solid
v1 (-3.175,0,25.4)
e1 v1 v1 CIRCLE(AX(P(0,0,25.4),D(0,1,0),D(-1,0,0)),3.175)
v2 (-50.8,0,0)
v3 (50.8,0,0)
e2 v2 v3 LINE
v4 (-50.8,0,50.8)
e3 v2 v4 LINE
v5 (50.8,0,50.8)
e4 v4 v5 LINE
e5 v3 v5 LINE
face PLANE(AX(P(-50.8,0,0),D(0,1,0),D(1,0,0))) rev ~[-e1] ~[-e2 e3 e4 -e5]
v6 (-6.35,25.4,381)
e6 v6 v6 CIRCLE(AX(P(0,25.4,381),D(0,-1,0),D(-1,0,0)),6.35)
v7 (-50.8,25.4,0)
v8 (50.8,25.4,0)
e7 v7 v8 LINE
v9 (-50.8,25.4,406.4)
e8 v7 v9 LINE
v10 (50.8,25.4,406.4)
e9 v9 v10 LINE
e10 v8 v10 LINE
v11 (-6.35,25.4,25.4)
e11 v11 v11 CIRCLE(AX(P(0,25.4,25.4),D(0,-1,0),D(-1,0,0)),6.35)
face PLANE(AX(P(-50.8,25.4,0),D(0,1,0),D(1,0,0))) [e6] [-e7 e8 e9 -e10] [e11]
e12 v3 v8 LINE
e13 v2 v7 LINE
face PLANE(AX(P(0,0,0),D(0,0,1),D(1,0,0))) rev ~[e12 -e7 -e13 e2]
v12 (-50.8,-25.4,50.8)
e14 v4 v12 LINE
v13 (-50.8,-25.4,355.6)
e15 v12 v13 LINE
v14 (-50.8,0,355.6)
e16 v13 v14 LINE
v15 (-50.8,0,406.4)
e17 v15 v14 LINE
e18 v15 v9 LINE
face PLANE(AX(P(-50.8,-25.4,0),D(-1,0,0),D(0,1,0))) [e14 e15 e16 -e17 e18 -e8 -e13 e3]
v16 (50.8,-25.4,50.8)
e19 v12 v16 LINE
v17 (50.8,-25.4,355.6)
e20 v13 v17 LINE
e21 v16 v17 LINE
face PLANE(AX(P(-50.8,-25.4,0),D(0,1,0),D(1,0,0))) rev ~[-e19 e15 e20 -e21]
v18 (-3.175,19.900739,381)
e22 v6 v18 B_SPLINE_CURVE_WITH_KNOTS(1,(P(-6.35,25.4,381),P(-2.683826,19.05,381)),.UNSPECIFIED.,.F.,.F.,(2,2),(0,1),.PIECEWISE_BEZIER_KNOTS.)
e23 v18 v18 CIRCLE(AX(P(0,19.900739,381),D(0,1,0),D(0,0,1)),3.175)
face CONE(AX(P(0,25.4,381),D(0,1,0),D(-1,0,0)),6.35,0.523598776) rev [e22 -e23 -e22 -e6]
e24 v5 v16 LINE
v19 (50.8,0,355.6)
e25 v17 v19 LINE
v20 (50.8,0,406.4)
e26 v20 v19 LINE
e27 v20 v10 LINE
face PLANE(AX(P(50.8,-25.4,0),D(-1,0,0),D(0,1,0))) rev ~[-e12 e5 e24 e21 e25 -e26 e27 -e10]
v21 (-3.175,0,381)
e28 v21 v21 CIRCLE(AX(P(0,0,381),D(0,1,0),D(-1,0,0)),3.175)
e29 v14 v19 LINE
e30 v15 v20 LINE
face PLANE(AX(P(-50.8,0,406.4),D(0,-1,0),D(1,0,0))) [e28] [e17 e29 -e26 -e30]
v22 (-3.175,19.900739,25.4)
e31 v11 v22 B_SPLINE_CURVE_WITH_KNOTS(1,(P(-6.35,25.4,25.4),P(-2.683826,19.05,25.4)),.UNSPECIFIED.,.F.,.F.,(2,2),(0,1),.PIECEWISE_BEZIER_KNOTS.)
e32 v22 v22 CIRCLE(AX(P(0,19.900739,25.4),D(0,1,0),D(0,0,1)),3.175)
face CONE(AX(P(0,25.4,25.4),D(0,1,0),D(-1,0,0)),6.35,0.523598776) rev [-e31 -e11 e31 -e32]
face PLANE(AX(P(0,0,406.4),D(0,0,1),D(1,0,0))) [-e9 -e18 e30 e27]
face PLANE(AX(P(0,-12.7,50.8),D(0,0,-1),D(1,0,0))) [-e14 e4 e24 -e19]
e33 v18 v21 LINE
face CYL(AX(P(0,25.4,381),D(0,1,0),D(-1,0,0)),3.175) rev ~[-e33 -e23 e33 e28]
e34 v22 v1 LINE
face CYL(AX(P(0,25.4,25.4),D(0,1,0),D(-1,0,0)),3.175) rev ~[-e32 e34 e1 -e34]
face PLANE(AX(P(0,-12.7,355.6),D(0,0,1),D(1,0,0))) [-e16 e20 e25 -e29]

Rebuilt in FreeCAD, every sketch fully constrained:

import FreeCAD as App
import Part
import Sketcher

V = App.Vector
Q = App.Units.Quantity

doc = App.newDocument("Part")
body = doc.addObject("PartDesign::Body", "Body")

# Sketch on XY plane
sketch1 = body.newObject("Sketcher::SketchObject", "Sketch")
sketch1.AttachmentSupport = (doc.getObject("XY_Plane"), [""])
sketch1.MapMode = "FlatFace"
sketch1.addGeometry([
    Part.LineSegment(V(-50.8, 25.4, 0), V(-50.8, -25.4, 0)),
    Part.LineSegment(V(-50.8, -25.4, 0), V(50.8, -25.4, 0)),
    Part.LineSegment(V(50.8, -25.4, 0), V(50.8, 25.4, 0)),
    Part.LineSegment(V(50.8, 25.4, 0), V(-50.8, 25.4, 0)),
], False)
sketch1.addConstraint([
    Sketcher.Constraint("Coincident", 0, 2, 1, 1),
    Sketcher.Constraint("Coincident", 1, 2, 2, 1),
    Sketcher.Constraint("Coincident", 2, 2, 3, 1),
    Sketcher.Constraint("Coincident", 3, 2, 0, 1),
    Sketcher.Constraint("Vertical", 0),
    Sketcher.Constraint("Horizontal", 1),
    Sketcher.Constraint("Vertical", 2),
    Sketcher.Constraint("Horizontal", 3),
    Sketcher.Constraint("Symmetric", 0, 2, 2, 2, -1, 1),
    Sketcher.Constraint("DistanceX", 1, 1, 1, 2, Q("4 in")),
    Sketcher.Constraint("DistanceY", 0, 2, 0, 1, Q("2 in")),
])
pad1 = body.newObject("PartDesign::Pad", "Pad")
pad1.Profile = sketch1
pad1.Length = Q("16 in")

# Sketch on XY plane
sketch2 = body.newObject("Sketcher::SketchObject", "Sketch001")
sketch2.AttachmentSupport = (doc.getObject("XY_Plane"), [""])
sketch2.MapMode = "FlatFace"
sketch2.AttachmentOffset = App.Placement(V(0, 0, 16 * 25.4), App.Rotation())
sketch2.addGeometry([
    Part.LineSegment(V(-50.8, 0, 0), V(-50.8, -25.4, 0)),
    Part.LineSegment(V(-50.8, -25.4, 0), V(50.8, -25.4, 0)),
    Part.LineSegment(V(50.8, -25.4, 0), V(50.8, 0, 0)),
    Part.LineSegment(V(50.8, 0, 0), V(-50.8, 0, 0)),
], False)
sketch2.addConstraint([
    Sketcher.Constraint("Coincident", 0, 2, 1, 1),
    Sketcher.Constraint("Coincident", 1, 2, 2, 1),
    Sketcher.Constraint("Coincident", 2, 2, 3, 1),
    Sketcher.Constraint("Coincident", 3, 2, 0, 1),
    Sketcher.Constraint("Vertical", 0),
    Sketcher.Constraint("Horizontal", 1),
    Sketcher.Constraint("Vertical", 2),
    Sketcher.Constraint("Horizontal", 3),
    Sketcher.Constraint("Symmetric", 2, 2, 3, 2, -1, 1),
    Sketcher.Constraint("DistanceX", 1, 1, 1, 2, Q("4 in")),
    Sketcher.Constraint("DistanceY", 0, 2, 0, 1, Q("1 in")),
])
pocket1 = body.newObject("PartDesign::Pocket", "Pocket")
pocket1.Profile = sketch2
pocket1.Length = Q("2 in")

# Sketch on XY plane
sketch3 = body.newObject("Sketcher::SketchObject", "Sketch002")
sketch3.AttachmentSupport = (doc.getObject("XY_Plane"), [""])
sketch3.MapMode = "FlatFace"
sketch3.addGeometry([
    Part.LineSegment(V(-50.8, -25.4, 0), V(-50.8, 0, 0)),
    Part.LineSegment(V(-50.8, 0, 0), V(50.8, 0, 0)),
    Part.LineSegment(V(50.8, 0, 0), V(50.8, -25.4, 0)),
    Part.LineSegment(V(50.8, -25.4, 0), V(-50.8, -25.4, 0)),
], False)
sketch3.addConstraint([
    Sketcher.Constraint("Coincident", 0, 2, 1, 1),
    Sketcher.Constraint("Coincident", 1, 2, 2, 1),
    Sketcher.Constraint("Coincident", 2, 2, 3, 1),
    Sketcher.Constraint("Coincident", 3, 2, 0, 1),
    Sketcher.Constraint("Vertical", 0),
    Sketcher.Constraint("Horizontal", 1),
    Sketcher.Constraint("Vertical", 2),
    Sketcher.Constraint("Horizontal", 3),
    Sketcher.Constraint("Symmetric", 0, 2, 1, 2, -1, 1),
    Sketcher.Constraint("DistanceX", 1, 1, 1, 2, Q("4 in")),
    Sketcher.Constraint("DistanceY", 0, 1, 0, 2, Q("1 in")),
])
pocket2 = body.newObject("PartDesign::Pocket", "Pocket001")
pocket2.Profile = sketch3
pocket2.Length = Q("2 in")
pocket2.Reversed = True

# Sketch on XZ plane
sketch4 = body.newObject("Sketcher::SketchObject", "Sketch003")
sketch4.AttachmentSupport = (doc.getObject("XZ_Plane"), [""])
sketch4.MapMode = "FlatFace"
sketch4.AttachmentOffset = App.Placement(V(0, 0, -1 * 25.4), App.Rotation())
sketch4.addGeometry([
    Part.Circle(V(0, 381, 0), V(0, 0, 1), 3.175),
    Part.Circle(V(0, 25.4, 0), V(0, 0, 1), 3.175),
], False)
sketch4.addConstraint([
    Sketcher.Constraint("Equal", 0, 1),
    Sketcher.Constraint("PointOnObject", 0, 3, -2),
    Sketcher.Constraint("PointOnObject", 1, 3, -2),
    Sketcher.Constraint("Diameter", 0, Q("0.25 in")),
    Sketcher.Constraint("DistanceY", -1, 1, 0, 3, Q("15 in")),
    Sketcher.Constraint("DistanceY", -1, 1, 1, 3, Q("1 in")),
])
pocket3 = body.newObject("PartDesign::Pocket", "Pocket002")
pocket3.Profile = sketch4
pocket3.Type = "ThroughAll"
pocket3.Reversed = True

# Sketch on XZ plane
sketch5 = body.newObject("Sketcher::SketchObject", "Sketch004")
sketch5.AttachmentSupport = (doc.getObject("XZ_Plane"), [""])
sketch5.MapMode = "FlatFace"
sketch5.AttachmentOffset = App.Placement(V(0, 0, -1 * 25.4), App.Rotation())
sketch5.addGeometry([
    Part.Circle(V(0, 381, 0), V(0, 0, 1), 6.35),
    Part.Circle(V(0, 25.4, 0), V(0, 0, 1), 6.35),
], False)
sketch5.addConstraint([
    Sketcher.Constraint("Equal", 0, 1),
    Sketcher.Constraint("PointOnObject", 0, 3, -2),
    Sketcher.Constraint("PointOnObject", 1, 3, -2),
    Sketcher.Constraint("Diameter", 0, Q("0.5 in")),
    Sketcher.Constraint("DistanceY", -1, 1, 0, 3, Q("15 in")),
    Sketcher.Constraint("DistanceY", -1, 1, 1, 3, Q("1 in")),
])
pocket4 = body.newObject("PartDesign::Pocket", "Pocket003")
pocket4.Profile = sketch5
pocket4.Length = Q("0.25 in")
pocket4.Reversed = True
pocket4.TaperAngle = -30

doc.recompute()
